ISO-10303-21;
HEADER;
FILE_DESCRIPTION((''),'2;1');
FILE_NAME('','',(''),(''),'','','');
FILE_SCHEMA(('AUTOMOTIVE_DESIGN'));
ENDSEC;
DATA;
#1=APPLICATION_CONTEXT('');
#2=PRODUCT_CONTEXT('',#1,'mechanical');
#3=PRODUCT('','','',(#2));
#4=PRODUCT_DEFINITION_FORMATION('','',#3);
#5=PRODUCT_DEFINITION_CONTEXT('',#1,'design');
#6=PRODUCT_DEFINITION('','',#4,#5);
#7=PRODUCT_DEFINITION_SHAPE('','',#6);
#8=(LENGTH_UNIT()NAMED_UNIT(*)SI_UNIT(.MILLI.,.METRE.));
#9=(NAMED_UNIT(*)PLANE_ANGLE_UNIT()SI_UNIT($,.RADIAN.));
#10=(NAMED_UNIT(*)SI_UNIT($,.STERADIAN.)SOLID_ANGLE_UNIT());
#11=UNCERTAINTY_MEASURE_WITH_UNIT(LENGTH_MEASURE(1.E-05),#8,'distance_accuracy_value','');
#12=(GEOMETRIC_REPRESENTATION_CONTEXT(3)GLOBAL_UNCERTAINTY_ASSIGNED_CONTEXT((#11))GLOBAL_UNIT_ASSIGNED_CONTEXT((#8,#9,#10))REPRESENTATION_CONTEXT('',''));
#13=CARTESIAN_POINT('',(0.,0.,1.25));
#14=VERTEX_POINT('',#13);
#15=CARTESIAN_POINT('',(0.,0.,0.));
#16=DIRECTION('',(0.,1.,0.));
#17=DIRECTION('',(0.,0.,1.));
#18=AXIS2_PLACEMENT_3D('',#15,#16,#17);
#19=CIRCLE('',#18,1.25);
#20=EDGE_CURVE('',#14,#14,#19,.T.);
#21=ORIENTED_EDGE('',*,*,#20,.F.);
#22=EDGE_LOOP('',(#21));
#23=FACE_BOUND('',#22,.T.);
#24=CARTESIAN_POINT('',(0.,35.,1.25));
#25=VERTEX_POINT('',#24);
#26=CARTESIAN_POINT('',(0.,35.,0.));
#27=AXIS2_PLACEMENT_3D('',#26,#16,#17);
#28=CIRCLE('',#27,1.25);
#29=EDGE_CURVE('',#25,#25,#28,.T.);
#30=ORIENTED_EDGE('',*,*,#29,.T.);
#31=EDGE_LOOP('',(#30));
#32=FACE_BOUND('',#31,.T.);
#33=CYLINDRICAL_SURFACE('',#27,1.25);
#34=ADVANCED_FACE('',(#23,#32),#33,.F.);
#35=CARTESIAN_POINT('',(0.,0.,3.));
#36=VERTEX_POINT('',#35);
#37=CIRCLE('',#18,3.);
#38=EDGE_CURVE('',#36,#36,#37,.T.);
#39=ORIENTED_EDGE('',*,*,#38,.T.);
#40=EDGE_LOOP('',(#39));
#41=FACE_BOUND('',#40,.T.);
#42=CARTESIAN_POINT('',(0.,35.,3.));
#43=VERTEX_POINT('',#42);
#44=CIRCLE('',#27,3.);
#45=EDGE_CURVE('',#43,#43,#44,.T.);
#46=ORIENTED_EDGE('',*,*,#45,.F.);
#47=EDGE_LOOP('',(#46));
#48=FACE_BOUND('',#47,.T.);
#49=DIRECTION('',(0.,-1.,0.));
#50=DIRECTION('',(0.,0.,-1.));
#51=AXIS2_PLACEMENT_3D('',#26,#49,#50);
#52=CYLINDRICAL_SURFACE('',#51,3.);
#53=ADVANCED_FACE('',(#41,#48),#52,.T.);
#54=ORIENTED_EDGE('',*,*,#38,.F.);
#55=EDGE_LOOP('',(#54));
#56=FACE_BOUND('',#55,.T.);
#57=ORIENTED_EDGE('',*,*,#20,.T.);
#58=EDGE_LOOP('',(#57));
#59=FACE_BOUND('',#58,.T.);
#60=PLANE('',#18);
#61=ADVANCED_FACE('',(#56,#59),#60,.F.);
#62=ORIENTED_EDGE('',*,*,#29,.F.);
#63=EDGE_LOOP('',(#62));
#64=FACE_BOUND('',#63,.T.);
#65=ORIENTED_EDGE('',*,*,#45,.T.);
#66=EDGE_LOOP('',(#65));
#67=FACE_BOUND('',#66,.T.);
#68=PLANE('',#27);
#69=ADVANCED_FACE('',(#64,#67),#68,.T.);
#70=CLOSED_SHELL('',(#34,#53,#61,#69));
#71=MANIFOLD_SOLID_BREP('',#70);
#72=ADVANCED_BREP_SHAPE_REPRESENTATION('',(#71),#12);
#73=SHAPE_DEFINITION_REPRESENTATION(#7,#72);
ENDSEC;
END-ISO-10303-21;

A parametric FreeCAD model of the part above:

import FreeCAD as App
import Part
import Sketcher

doc = App.newDocument("Part")
body = doc.addObject("PartDesign::Body", "Body")

# Sketch on XZ plane
sketch1 = body.newObject("Sketcher::SketchObject", "Sketch")
sketch1.AttachmentSupport = (doc.getObject("XZ_Plane"), [""])
sketch1.MapMode = "FlatFace"
sketch1.addGeometry(Part.Circle(App.Vector(0, 0, 0), App.Vector(0, 0, 1), 3), False)
sketch1.addConstraint([
    Sketcher.Constraint("Coincident", 0, 3, -1, 1),
    Sketcher.Constraint("Diameter", 0, 6.0),
])
pad1 = body.newObject("PartDesign::Pad", "Pad")
pad1.Profile = sketch1
pad1.Length = 35
pad1.Reversed = True

# Sketch on XZ plane
sketch2 = body.newObject("Sketcher::SketchObject", "Sketch001")
sketch2.AttachmentSupport = (doc.getObject("XZ_Plane"), [""])
sketch2.MapMode = "FlatFace"
sketch2.AttachmentOffset = App.Placement(App.Vector(0, 0, -35), App.Rotation())
sketch2.addGeometry(Part.Circle(App.Vector(0, 0, 0), App.Vector(0, 0, 1), 1.25), False)
sketch2.addConstraint([
    Sketcher.Constraint("Coincident", 0, 3, -1, 1),
    Sketcher.Constraint("Diameter", 0, 2.5),
])
doc.recompute()
hole = body.newObject("PartDesign::Hole", "Hole")
hole.Profile = sketch2
hole.ThreadType = "None"
hole.Diameter = 2.5
hole.DepthType = "ThroughAll"
hole.Reversed = True

doc.recompute()
